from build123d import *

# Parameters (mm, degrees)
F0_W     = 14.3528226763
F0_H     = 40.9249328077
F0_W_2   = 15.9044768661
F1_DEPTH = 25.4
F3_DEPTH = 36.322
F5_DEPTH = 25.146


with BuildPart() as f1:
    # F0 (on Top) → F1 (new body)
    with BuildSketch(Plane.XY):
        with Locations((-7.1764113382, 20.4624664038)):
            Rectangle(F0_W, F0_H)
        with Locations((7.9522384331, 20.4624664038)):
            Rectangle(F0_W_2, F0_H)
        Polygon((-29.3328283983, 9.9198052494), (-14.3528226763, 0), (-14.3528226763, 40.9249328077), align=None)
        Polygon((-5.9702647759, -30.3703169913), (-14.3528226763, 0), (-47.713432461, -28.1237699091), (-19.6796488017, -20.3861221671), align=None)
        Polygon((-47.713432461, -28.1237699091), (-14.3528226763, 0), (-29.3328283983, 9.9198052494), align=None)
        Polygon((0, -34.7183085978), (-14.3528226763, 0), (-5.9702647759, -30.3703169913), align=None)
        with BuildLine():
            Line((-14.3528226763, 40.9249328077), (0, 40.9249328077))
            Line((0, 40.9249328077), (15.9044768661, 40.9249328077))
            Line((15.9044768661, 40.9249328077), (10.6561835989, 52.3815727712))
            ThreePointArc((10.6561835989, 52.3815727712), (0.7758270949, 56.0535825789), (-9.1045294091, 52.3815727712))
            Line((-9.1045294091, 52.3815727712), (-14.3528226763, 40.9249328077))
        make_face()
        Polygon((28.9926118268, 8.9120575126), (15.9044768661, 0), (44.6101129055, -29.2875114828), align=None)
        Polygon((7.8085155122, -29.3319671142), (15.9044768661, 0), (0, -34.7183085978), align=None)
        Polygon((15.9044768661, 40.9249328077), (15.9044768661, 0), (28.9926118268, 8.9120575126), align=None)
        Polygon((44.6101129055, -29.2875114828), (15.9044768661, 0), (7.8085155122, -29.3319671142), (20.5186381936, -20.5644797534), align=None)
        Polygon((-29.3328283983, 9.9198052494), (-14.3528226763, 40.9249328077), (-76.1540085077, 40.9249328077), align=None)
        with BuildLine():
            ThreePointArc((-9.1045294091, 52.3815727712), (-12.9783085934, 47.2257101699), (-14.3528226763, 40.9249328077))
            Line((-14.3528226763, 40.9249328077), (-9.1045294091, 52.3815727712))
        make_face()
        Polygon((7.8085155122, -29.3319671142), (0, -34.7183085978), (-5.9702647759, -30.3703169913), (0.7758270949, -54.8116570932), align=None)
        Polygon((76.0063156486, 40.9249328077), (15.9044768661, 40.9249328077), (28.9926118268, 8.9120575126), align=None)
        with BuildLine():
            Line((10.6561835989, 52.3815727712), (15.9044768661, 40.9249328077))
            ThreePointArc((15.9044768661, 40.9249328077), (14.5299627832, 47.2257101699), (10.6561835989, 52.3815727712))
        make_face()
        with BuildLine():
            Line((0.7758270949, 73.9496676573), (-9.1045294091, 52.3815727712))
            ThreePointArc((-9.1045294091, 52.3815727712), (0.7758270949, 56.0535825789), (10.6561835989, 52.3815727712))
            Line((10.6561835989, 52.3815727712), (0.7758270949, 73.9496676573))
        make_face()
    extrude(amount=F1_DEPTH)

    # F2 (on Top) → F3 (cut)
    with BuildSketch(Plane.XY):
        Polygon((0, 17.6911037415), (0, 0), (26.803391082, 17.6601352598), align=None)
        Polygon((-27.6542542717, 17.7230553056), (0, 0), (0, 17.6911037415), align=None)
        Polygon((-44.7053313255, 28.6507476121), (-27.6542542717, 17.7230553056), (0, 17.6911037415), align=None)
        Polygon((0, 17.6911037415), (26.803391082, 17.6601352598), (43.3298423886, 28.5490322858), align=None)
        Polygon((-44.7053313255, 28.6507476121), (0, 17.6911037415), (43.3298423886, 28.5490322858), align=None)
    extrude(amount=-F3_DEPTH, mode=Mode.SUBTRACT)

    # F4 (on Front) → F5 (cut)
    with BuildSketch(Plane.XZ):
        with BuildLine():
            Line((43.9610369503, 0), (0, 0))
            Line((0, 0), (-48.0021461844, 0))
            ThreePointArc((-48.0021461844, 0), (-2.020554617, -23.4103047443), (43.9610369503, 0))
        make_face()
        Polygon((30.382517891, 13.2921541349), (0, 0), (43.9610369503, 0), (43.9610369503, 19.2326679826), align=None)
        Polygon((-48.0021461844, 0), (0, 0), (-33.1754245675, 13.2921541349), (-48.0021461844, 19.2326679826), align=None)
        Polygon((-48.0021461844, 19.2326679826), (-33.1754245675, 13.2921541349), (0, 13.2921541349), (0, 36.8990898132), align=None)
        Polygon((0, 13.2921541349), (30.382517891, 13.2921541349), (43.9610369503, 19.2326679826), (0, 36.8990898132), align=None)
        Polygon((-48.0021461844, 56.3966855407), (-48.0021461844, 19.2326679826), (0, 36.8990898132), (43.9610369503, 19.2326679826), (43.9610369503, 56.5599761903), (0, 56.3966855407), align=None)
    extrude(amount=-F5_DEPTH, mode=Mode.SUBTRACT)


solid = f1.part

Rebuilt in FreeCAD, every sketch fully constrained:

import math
import FreeCAD as App
import Part
import Sketcher
from FreeCAD import Vector
Q = App.Units.Quantity

doc = App.newDocument("Part")
body = doc.addObject("PartDesign::Body", "Body")

sketch1 = doc.addObject("Sketcher::SketchObject", "Sketch")
body.addObject(sketch1)
sketch1.AttachmentSupport = (doc.XY_Plane, [""])
sketch1.MapMode = "FlatFace"
sketch1.addGeometry(Part.LineSegment(Vector(-20, -20, 0), Vector(-6, -30, 0)), False)
sketch1.addGeometry(Part.LineSegment(Vector(-6, -30, 0), Vector(1, -55, 0)), False)
sketch1.addGeometry(Part.LineSegment(Vector(1, -55, 0), Vector(8, -29, 0)), False)
sketch1.addGeometry(Part.LineSegment(Vector(8, -29, 0), Vector(21, -21, 0)), False)
sketch1.addGeometry(Part.LineSegment(Vector(21, -21, 0), Vector(45, -29, 0)), False)
sketch1.addGeometry(Part.LineSegment(Vector(45, -29, 0), Vector(29, 9, 0)), False)
sketch1.addGeometry(Part.LineSegment(Vector(29, 9, 0), Vector(76, 41, 0)), False)
sketch1.addGeometry(Part.LineSegment(Vector(76, 41, 0), Vector(16, 41, 0)), False)
sketch1.addGeometry(Part.ArcOfCircle(Part.Circle(Vector(1, 41, 0), Vector(0, 0, 1), 15), math.radians(0), math.radians(49)), False)
sketch1.addGeometry(Part.LineSegment(Vector(11, 52, 0), Vector(1, 74, 0)), False)
sketch1.addGeometry(Part.LineSegment(Vector(1, 74, 0), Vector(-9, 52, 0)), False)
sketch1.addGeometry(Part.ArcOfCircle(Part.Circle(Vector(1, 41, 0), Vector(0, 0, 1), 15), math.radians(131), math.radians(180)), False)
sketch1.addGeometry(Part.LineSegment(Vector(-14, 41, 0), Vector(-76, 41, 0)), False)
sketch1.addGeometry(Part.LineSegment(Vector(-76, 41, 0), Vector(-29, 10, 0)), False)
sketch1.addGeometry(Part.LineSegment(Vector(-29, 10, 0), Vector(-48, -28, 0)), False)
sketch1.addGeometry(Part.LineSegment(Vector(-48, -28, 0), Vector(-20, -20, 0)), False)
sketch1.addGeometry(Part.LineSegment(Vector(16, 0, 0), Vector(0, -35, 0)), False)
sketch1.addGeometry(Part.LineSegment(Vector(0, -35, 0), Vector(-14, 0, 0)), False)
sketch1.addGeometry(Part.LineSegment(Vector(-14, 0, 0), Vector(16, 0, 0)), False)
sketch1.addConstraint(Sketcher.Constraint("Coincident", 0, 2, 1, 1))
sketch1.addConstraint(Sketcher.Constraint("Coincident", 1, 2, 2, 1))
sketch1.addConstraint(Sketcher.Constraint("Coincident", 2, 2, 3, 1))
sketch1.addConstraint(Sketcher.Constraint("Coincident", 3, 2, 4, 1))
sketch1.addConstraint(Sketcher.Constraint("Coincident", 4, 2, 5, 1))
sketch1.addConstraint(Sketcher.Constraint("Coincident", 5, 2, 6, 1))
sketch1.addConstraint(Sketcher.Constraint("Coincident", 6, 2, 7, 1))
sketch1.addConstraint(Sketcher.Constraint("Coincident", 7, 2, 8, 1))
sketch1.addConstraint(Sketcher.Constraint("Coincident", 8, 2, 9, 1))
sketch1.addConstraint(Sketcher.Constraint("Coincident", 9, 2, 10, 1))
sketch1.addConstraint(Sketcher.Constraint("Coincident", 10, 2, 11, 1))
sketch1.addConstraint(Sketcher.Constraint("Coincident", 11, 2, 12, 1))
sketch1.addConstraint(Sketcher.Constraint("Coincident", 12, 2, 13, 1))
sketch1.addConstraint(Sketcher.Constraint("Coincident", 13, 2, 14, 1))
sketch1.addConstraint(Sketcher.Constraint("Coincident", 14, 2, 15, 1))
sketch1.addConstraint(Sketcher.Constraint("Coincident", 15, 2, 0, 1))
sketch1.addConstraint(Sketcher.Constraint("Coincident", 16, 2, 17, 1))
sketch1.addConstraint(Sketcher.Constraint("Coincident", 17, 2, 18, 1))
sketch1.addConstraint(Sketcher.Constraint("Coincident", 18, 2, 16, 1))
sketch1.addConstraint(Sketcher.Constraint("Horizontal", 7))
sketch1.addConstraint(Sketcher.Constraint("Horizontal", 12))
sketch1.addConstraint(Sketcher.Constraint("Horizontal", 18))
sketch1.addConstraint(Sketcher.Constraint("Coincident", 11, 3, 8, 3))
sketch1.addConstraint(Sketcher.Constraint("Equal", 8, 11))
sketch1.addConstraint(Sketcher.Constraint("PointOnObject", 16, 2, -2))
sketch1.addConstraint(Sketcher.Constraint("PointOnObject", 17, 2, -1))
sketch1.addConstraint(Sketcher.Constraint("Perpendicular", 1, 15))
sketch1.addConstraint(Sketcher.Constraint("Parallel", 10, 16))
sketch1.addConstraint(Sketcher.Constraint("Horizontal", 11, 3, 6, 2))
sketch1.addConstraint(Sketcher.Constraint("Horizontal", 8, 2, 10, 2))
sketch1.addConstraint(Sketcher.Constraint("Horizontal", 7, 2, 11, 2))
sketch1.addConstraint(Sketcher.Constraint("Vertical", 11, 3, 1, 2))
sketch1.addConstraint(Sketcher.Constraint("Vertical", 1, 2, 9, 2))
sketch1.addConstraint(Sketcher.Constraint("Vertical", 11, 2, 17, 2))
sketch1.addConstraint(Sketcher.Constraint("Vertical", 7, 2, 18, 2))
sketch1.addConstraint(Sketcher.Constraint("Radius", 8, 15.12865))
sketch1.addConstraint(Sketcher.Constraint("Distance", 0, 16.959698))
sketch1.addConstraint(Sketcher.Constraint("DistanceX", 7, 2, 7, 1, 60.101839))
sketch1.addConstraint(Sketcher.Constraint("DistanceY", 2, 2, 8, 3, 70.2569))
sketch1.addConstraint(Sketcher.Constraint("DistanceX", 5, 2, 4, 2, 15.617501))
sketch1.addConstraint(Sketcher.Constraint("DistanceX", 13, 2, 10, 2, 20.228299))
sketch1.addConstraint(Sketcher.Constraint("Distance", 2, 26.432429))
sketch1.addConstraint(Sketcher.Constraint("Distance", 4, 25.622069))
sketch1.addConstraint(Sketcher.Constraint("Distance", 6, 56.87805))
sketch1.addConstraint(Sketcher.Constraint("Distance", 16, 38.187869))
sketch1.addConstraint(Sketcher.Constraint("Distance", 17, 37.568131))
sketch1.addConstraint(Sketcher.Constraint("DistanceX", 12, 2, 12, 1, 61.801186))
sketch1.addConstraint(Sketcher.Constraint("DistanceX", -1, 1, 3, 2, 20.518638))
sketch1.addConstraint(Sketcher.Constraint("DistanceY", 3, 2, -1, 1, 20.56448))
sketch1.addConstraint(Sketcher.Constraint("DistanceY", 4, 2, -1, 1, 29.287511))
sketch1.addConstraint(Sketcher.Constraint("DistanceX", 10, 2, -1, 1, 9.104529))
sketch1.addConstraint(Sketcher.Constraint("DistanceY", 14, 2, -1, 1, 28.12377))
sketch1.addConstraint(Sketcher.Constraint("DistanceX", 15, 2, -1, 1, 19.679649))
sketch1.addConstraint(Sketcher.Constraint("DistanceX", 0, 2, 8, 3, 6.746092))
sketch1.addConstraint(Sketcher.Constraint("DistanceY", 0, 2, 8, 3, 71.29525))
sketch1.addConstraint(Sketcher.Constraint("DistanceY", 1, 2, 0, 2, 24.44134))
sketch1.addConstraint(Sketcher.Constraint("DistanceY", 4, 2, 5, 2, 38.199569))
sketch1.addConstraint(Sketcher.Constraint("Distance", 13, 56.156396))
pad1 = doc.addObject("PartDesign::Pad", "Pad")
body.addObject(pad1)
pad1.Profile = sketch1
pad1.Length = Q("1 in")

sketch2 = doc.addObject("Sketcher::SketchObject", "Sketch001")
body.addObject(sketch2)
sketch2.AttachmentSupport = (doc.XY_Plane, [""])
sketch2.MapMode = "FlatFace"
sketch2.addGeometry(Part.LineSegment(Vector(0, 0, 0), Vector(43, 29, 0)), False)
sketch2.addGeometry(Part.LineSegment(Vector(43, 29, 0), Vector(-45, 29, 0)), False)
sketch2.addGeometry(Part.LineSegment(Vector(-45, 29, 0), Vector(-28, 18, 0)), False)
sketch2.addGeometry(Part.LineSegment(Vector(-28, 18, 0), Vector(0, 0, 0)), False)
sketch2.addConstraint(Sketcher.Constraint("Coincident", 0, 2, 1, 1))
sketch2.addConstraint(Sketcher.Constraint("Coincident", 1, 2, 2, 1))
sketch2.addConstraint(Sketcher.Constraint("Coincident", 2, 2, 3, 1))
sketch2.addConstraint(Sketcher.Constraint("Coincident", 3, 2, 0, 1))
sketch2.addConstraint(Sketcher.Constraint("Coincident", 3, 2, -1, 1))
sketch2.addConstraint(Sketcher.Constraint("Parallel", 2, 3))
sketch2.addConstraint(Sketcher.Constraint("Distance", 0, 51.889522))
sketch2.addConstraint(Sketcher.Constraint("Distance", 2, 20.252251))
sketch2.addConstraint(Sketcher.Constraint("DistanceX", 1, 2, -1, 1, 44.705331))
sketch2.addConstraint(Sketcher.Constraint("Distance", 1, 88.035232))
sketch2.addConstraint(Sketcher.Constraint("Distance", 3, 32.846072))
pocket1 = doc.addObject("PartDesign::Pocket", "Pocket")
body.addObject(pocket1)
pocket1.Profile = sketch2
pocket1.Length = Q("1.43 in")

sketch3 = doc.addObject("Sketcher::SketchObject", "Sketch002")
body.addObject(sketch3)
sketch3.AttachmentSupport = (doc.XZ_Plane, [""])
sketch3.MapMode = "FlatFace"
sketch3.addGeometry(Part.ArcOfCircle(Part.Circle(Vector(-2, 33, 0), Vector(0, 0, 1), 57), math.radians(-144), math.radians(-36)), False)
sketch3.addGeometry(Part.LineSegment(Vector(44, 0, 0), Vector(44, 57, 0)), False)
sketch3.addGeometry(Part.LineSegment(Vector(44, 57, 0), Vector(0, 56, 0)), False)
sketch3.addGeometry(Part.LineSegment(Vector(0, 56, 0), Vector(-48, 56, 0)), False)
sketch3.addGeometry(Part.LineSegment(Vector(-48, 56, 0), Vector(-48, 0, 0)), False)
sketch3.addGeometry(Part.LineSegment(Vector(30, 13, 0), Vector(0, 0, 0)), False)
sketch3.addGeometry(Part.LineSegment(Vector(0, 0, 0), Vector(-33, 13, 0)), False)
sketch3.addGeometry(Part.LineSegment(Vector(-33, 13, 0), Vector(30, 13, 0)), False)
sketch3.addConstraint(Sketcher.Constraint("Coincident", 0, 2, 1, 1))
sketch3.addConstraint(Sketcher.Constraint("Coincident", 1, 2, 2, 1))
sketch3.addConstraint(Sketcher.Constraint("Coincident", 2, 2, 3, 1))
sketch3.addConstraint(Sketcher.Constraint("Coincident", 3, 2, 4, 1))
sketch3.addConstraint(Sketcher.Constraint("Coincident", 4, 2, 0, 1))
sketch3.addConstraint(Sketcher.Constraint("Coincident", 5, 2, 6, 1))
sketch3.addConstraint(Sketcher.Constraint("Coincident", 6, 2, 7, 1))
sketch3.addConstraint(Sketcher.Constraint("Coincident", 7, 2, 5, 1))
sketch3.addConstraint(Sketcher.Constraint("Vertical", 1))
sketch3.addConstraint(Sketcher.Constraint("Horizontal", 3))
sketch3.addConstraint(Sketcher.Constraint("Vertical", 4))
sketch3.addConstraint(Sketcher.Constraint("Horizontal", 7))
sketch3.addConstraint(Sketcher.Constraint("Coincident", 5, 2, -1, 1))
sketch3.addConstraint(Sketcher.Constraint("PointOnObject", 0, 2, -1))
sketch3.addConstraint(Sketcher.Constraint("PointOnObject", 2, 2, -2))
sketch3.addConstraint(Sketcher.Constraint("PointOnObject", 4, 2, -1))
sketch3.addConstraint(Sketcher.Constraint("Radius", 0, 56.862761))
sketch3.addConstraint(Sketcher.Constraint("Distance", 2, 43.96134))
sketch3.addConstraint(Sketcher.Constraint("DistanceX", 3, 2, 3, 1, 48.002146))
sketch3.addConstraint(Sketcher.Constraint("DistanceX", 7, 1, 7, 2, 63.557942))
sketch3.addConstraint(Sketcher.Constraint("DistanceY", 1, 1, 1, 2, 56.559976))
sketch3.addConstraint(Sketcher.Constraint("DistanceY", 4, 2, 4, 1, 56.396686))
sketch3.addConstraint(Sketcher.Constraint("DistanceX", 4, 2, 6, 2, 14.826722))
sketch3.addConstraint(Sketcher.Constraint("DistanceY", 6, 2, 3, 2, 43.104531))
pocket2 = doc.addObject("PartDesign::Pocket", "Pocket001")
body.addObject(pocket2)
pocket2.Profile = sketch3
pocket2.Length = Q("0.99 in")

doc.recompute()
